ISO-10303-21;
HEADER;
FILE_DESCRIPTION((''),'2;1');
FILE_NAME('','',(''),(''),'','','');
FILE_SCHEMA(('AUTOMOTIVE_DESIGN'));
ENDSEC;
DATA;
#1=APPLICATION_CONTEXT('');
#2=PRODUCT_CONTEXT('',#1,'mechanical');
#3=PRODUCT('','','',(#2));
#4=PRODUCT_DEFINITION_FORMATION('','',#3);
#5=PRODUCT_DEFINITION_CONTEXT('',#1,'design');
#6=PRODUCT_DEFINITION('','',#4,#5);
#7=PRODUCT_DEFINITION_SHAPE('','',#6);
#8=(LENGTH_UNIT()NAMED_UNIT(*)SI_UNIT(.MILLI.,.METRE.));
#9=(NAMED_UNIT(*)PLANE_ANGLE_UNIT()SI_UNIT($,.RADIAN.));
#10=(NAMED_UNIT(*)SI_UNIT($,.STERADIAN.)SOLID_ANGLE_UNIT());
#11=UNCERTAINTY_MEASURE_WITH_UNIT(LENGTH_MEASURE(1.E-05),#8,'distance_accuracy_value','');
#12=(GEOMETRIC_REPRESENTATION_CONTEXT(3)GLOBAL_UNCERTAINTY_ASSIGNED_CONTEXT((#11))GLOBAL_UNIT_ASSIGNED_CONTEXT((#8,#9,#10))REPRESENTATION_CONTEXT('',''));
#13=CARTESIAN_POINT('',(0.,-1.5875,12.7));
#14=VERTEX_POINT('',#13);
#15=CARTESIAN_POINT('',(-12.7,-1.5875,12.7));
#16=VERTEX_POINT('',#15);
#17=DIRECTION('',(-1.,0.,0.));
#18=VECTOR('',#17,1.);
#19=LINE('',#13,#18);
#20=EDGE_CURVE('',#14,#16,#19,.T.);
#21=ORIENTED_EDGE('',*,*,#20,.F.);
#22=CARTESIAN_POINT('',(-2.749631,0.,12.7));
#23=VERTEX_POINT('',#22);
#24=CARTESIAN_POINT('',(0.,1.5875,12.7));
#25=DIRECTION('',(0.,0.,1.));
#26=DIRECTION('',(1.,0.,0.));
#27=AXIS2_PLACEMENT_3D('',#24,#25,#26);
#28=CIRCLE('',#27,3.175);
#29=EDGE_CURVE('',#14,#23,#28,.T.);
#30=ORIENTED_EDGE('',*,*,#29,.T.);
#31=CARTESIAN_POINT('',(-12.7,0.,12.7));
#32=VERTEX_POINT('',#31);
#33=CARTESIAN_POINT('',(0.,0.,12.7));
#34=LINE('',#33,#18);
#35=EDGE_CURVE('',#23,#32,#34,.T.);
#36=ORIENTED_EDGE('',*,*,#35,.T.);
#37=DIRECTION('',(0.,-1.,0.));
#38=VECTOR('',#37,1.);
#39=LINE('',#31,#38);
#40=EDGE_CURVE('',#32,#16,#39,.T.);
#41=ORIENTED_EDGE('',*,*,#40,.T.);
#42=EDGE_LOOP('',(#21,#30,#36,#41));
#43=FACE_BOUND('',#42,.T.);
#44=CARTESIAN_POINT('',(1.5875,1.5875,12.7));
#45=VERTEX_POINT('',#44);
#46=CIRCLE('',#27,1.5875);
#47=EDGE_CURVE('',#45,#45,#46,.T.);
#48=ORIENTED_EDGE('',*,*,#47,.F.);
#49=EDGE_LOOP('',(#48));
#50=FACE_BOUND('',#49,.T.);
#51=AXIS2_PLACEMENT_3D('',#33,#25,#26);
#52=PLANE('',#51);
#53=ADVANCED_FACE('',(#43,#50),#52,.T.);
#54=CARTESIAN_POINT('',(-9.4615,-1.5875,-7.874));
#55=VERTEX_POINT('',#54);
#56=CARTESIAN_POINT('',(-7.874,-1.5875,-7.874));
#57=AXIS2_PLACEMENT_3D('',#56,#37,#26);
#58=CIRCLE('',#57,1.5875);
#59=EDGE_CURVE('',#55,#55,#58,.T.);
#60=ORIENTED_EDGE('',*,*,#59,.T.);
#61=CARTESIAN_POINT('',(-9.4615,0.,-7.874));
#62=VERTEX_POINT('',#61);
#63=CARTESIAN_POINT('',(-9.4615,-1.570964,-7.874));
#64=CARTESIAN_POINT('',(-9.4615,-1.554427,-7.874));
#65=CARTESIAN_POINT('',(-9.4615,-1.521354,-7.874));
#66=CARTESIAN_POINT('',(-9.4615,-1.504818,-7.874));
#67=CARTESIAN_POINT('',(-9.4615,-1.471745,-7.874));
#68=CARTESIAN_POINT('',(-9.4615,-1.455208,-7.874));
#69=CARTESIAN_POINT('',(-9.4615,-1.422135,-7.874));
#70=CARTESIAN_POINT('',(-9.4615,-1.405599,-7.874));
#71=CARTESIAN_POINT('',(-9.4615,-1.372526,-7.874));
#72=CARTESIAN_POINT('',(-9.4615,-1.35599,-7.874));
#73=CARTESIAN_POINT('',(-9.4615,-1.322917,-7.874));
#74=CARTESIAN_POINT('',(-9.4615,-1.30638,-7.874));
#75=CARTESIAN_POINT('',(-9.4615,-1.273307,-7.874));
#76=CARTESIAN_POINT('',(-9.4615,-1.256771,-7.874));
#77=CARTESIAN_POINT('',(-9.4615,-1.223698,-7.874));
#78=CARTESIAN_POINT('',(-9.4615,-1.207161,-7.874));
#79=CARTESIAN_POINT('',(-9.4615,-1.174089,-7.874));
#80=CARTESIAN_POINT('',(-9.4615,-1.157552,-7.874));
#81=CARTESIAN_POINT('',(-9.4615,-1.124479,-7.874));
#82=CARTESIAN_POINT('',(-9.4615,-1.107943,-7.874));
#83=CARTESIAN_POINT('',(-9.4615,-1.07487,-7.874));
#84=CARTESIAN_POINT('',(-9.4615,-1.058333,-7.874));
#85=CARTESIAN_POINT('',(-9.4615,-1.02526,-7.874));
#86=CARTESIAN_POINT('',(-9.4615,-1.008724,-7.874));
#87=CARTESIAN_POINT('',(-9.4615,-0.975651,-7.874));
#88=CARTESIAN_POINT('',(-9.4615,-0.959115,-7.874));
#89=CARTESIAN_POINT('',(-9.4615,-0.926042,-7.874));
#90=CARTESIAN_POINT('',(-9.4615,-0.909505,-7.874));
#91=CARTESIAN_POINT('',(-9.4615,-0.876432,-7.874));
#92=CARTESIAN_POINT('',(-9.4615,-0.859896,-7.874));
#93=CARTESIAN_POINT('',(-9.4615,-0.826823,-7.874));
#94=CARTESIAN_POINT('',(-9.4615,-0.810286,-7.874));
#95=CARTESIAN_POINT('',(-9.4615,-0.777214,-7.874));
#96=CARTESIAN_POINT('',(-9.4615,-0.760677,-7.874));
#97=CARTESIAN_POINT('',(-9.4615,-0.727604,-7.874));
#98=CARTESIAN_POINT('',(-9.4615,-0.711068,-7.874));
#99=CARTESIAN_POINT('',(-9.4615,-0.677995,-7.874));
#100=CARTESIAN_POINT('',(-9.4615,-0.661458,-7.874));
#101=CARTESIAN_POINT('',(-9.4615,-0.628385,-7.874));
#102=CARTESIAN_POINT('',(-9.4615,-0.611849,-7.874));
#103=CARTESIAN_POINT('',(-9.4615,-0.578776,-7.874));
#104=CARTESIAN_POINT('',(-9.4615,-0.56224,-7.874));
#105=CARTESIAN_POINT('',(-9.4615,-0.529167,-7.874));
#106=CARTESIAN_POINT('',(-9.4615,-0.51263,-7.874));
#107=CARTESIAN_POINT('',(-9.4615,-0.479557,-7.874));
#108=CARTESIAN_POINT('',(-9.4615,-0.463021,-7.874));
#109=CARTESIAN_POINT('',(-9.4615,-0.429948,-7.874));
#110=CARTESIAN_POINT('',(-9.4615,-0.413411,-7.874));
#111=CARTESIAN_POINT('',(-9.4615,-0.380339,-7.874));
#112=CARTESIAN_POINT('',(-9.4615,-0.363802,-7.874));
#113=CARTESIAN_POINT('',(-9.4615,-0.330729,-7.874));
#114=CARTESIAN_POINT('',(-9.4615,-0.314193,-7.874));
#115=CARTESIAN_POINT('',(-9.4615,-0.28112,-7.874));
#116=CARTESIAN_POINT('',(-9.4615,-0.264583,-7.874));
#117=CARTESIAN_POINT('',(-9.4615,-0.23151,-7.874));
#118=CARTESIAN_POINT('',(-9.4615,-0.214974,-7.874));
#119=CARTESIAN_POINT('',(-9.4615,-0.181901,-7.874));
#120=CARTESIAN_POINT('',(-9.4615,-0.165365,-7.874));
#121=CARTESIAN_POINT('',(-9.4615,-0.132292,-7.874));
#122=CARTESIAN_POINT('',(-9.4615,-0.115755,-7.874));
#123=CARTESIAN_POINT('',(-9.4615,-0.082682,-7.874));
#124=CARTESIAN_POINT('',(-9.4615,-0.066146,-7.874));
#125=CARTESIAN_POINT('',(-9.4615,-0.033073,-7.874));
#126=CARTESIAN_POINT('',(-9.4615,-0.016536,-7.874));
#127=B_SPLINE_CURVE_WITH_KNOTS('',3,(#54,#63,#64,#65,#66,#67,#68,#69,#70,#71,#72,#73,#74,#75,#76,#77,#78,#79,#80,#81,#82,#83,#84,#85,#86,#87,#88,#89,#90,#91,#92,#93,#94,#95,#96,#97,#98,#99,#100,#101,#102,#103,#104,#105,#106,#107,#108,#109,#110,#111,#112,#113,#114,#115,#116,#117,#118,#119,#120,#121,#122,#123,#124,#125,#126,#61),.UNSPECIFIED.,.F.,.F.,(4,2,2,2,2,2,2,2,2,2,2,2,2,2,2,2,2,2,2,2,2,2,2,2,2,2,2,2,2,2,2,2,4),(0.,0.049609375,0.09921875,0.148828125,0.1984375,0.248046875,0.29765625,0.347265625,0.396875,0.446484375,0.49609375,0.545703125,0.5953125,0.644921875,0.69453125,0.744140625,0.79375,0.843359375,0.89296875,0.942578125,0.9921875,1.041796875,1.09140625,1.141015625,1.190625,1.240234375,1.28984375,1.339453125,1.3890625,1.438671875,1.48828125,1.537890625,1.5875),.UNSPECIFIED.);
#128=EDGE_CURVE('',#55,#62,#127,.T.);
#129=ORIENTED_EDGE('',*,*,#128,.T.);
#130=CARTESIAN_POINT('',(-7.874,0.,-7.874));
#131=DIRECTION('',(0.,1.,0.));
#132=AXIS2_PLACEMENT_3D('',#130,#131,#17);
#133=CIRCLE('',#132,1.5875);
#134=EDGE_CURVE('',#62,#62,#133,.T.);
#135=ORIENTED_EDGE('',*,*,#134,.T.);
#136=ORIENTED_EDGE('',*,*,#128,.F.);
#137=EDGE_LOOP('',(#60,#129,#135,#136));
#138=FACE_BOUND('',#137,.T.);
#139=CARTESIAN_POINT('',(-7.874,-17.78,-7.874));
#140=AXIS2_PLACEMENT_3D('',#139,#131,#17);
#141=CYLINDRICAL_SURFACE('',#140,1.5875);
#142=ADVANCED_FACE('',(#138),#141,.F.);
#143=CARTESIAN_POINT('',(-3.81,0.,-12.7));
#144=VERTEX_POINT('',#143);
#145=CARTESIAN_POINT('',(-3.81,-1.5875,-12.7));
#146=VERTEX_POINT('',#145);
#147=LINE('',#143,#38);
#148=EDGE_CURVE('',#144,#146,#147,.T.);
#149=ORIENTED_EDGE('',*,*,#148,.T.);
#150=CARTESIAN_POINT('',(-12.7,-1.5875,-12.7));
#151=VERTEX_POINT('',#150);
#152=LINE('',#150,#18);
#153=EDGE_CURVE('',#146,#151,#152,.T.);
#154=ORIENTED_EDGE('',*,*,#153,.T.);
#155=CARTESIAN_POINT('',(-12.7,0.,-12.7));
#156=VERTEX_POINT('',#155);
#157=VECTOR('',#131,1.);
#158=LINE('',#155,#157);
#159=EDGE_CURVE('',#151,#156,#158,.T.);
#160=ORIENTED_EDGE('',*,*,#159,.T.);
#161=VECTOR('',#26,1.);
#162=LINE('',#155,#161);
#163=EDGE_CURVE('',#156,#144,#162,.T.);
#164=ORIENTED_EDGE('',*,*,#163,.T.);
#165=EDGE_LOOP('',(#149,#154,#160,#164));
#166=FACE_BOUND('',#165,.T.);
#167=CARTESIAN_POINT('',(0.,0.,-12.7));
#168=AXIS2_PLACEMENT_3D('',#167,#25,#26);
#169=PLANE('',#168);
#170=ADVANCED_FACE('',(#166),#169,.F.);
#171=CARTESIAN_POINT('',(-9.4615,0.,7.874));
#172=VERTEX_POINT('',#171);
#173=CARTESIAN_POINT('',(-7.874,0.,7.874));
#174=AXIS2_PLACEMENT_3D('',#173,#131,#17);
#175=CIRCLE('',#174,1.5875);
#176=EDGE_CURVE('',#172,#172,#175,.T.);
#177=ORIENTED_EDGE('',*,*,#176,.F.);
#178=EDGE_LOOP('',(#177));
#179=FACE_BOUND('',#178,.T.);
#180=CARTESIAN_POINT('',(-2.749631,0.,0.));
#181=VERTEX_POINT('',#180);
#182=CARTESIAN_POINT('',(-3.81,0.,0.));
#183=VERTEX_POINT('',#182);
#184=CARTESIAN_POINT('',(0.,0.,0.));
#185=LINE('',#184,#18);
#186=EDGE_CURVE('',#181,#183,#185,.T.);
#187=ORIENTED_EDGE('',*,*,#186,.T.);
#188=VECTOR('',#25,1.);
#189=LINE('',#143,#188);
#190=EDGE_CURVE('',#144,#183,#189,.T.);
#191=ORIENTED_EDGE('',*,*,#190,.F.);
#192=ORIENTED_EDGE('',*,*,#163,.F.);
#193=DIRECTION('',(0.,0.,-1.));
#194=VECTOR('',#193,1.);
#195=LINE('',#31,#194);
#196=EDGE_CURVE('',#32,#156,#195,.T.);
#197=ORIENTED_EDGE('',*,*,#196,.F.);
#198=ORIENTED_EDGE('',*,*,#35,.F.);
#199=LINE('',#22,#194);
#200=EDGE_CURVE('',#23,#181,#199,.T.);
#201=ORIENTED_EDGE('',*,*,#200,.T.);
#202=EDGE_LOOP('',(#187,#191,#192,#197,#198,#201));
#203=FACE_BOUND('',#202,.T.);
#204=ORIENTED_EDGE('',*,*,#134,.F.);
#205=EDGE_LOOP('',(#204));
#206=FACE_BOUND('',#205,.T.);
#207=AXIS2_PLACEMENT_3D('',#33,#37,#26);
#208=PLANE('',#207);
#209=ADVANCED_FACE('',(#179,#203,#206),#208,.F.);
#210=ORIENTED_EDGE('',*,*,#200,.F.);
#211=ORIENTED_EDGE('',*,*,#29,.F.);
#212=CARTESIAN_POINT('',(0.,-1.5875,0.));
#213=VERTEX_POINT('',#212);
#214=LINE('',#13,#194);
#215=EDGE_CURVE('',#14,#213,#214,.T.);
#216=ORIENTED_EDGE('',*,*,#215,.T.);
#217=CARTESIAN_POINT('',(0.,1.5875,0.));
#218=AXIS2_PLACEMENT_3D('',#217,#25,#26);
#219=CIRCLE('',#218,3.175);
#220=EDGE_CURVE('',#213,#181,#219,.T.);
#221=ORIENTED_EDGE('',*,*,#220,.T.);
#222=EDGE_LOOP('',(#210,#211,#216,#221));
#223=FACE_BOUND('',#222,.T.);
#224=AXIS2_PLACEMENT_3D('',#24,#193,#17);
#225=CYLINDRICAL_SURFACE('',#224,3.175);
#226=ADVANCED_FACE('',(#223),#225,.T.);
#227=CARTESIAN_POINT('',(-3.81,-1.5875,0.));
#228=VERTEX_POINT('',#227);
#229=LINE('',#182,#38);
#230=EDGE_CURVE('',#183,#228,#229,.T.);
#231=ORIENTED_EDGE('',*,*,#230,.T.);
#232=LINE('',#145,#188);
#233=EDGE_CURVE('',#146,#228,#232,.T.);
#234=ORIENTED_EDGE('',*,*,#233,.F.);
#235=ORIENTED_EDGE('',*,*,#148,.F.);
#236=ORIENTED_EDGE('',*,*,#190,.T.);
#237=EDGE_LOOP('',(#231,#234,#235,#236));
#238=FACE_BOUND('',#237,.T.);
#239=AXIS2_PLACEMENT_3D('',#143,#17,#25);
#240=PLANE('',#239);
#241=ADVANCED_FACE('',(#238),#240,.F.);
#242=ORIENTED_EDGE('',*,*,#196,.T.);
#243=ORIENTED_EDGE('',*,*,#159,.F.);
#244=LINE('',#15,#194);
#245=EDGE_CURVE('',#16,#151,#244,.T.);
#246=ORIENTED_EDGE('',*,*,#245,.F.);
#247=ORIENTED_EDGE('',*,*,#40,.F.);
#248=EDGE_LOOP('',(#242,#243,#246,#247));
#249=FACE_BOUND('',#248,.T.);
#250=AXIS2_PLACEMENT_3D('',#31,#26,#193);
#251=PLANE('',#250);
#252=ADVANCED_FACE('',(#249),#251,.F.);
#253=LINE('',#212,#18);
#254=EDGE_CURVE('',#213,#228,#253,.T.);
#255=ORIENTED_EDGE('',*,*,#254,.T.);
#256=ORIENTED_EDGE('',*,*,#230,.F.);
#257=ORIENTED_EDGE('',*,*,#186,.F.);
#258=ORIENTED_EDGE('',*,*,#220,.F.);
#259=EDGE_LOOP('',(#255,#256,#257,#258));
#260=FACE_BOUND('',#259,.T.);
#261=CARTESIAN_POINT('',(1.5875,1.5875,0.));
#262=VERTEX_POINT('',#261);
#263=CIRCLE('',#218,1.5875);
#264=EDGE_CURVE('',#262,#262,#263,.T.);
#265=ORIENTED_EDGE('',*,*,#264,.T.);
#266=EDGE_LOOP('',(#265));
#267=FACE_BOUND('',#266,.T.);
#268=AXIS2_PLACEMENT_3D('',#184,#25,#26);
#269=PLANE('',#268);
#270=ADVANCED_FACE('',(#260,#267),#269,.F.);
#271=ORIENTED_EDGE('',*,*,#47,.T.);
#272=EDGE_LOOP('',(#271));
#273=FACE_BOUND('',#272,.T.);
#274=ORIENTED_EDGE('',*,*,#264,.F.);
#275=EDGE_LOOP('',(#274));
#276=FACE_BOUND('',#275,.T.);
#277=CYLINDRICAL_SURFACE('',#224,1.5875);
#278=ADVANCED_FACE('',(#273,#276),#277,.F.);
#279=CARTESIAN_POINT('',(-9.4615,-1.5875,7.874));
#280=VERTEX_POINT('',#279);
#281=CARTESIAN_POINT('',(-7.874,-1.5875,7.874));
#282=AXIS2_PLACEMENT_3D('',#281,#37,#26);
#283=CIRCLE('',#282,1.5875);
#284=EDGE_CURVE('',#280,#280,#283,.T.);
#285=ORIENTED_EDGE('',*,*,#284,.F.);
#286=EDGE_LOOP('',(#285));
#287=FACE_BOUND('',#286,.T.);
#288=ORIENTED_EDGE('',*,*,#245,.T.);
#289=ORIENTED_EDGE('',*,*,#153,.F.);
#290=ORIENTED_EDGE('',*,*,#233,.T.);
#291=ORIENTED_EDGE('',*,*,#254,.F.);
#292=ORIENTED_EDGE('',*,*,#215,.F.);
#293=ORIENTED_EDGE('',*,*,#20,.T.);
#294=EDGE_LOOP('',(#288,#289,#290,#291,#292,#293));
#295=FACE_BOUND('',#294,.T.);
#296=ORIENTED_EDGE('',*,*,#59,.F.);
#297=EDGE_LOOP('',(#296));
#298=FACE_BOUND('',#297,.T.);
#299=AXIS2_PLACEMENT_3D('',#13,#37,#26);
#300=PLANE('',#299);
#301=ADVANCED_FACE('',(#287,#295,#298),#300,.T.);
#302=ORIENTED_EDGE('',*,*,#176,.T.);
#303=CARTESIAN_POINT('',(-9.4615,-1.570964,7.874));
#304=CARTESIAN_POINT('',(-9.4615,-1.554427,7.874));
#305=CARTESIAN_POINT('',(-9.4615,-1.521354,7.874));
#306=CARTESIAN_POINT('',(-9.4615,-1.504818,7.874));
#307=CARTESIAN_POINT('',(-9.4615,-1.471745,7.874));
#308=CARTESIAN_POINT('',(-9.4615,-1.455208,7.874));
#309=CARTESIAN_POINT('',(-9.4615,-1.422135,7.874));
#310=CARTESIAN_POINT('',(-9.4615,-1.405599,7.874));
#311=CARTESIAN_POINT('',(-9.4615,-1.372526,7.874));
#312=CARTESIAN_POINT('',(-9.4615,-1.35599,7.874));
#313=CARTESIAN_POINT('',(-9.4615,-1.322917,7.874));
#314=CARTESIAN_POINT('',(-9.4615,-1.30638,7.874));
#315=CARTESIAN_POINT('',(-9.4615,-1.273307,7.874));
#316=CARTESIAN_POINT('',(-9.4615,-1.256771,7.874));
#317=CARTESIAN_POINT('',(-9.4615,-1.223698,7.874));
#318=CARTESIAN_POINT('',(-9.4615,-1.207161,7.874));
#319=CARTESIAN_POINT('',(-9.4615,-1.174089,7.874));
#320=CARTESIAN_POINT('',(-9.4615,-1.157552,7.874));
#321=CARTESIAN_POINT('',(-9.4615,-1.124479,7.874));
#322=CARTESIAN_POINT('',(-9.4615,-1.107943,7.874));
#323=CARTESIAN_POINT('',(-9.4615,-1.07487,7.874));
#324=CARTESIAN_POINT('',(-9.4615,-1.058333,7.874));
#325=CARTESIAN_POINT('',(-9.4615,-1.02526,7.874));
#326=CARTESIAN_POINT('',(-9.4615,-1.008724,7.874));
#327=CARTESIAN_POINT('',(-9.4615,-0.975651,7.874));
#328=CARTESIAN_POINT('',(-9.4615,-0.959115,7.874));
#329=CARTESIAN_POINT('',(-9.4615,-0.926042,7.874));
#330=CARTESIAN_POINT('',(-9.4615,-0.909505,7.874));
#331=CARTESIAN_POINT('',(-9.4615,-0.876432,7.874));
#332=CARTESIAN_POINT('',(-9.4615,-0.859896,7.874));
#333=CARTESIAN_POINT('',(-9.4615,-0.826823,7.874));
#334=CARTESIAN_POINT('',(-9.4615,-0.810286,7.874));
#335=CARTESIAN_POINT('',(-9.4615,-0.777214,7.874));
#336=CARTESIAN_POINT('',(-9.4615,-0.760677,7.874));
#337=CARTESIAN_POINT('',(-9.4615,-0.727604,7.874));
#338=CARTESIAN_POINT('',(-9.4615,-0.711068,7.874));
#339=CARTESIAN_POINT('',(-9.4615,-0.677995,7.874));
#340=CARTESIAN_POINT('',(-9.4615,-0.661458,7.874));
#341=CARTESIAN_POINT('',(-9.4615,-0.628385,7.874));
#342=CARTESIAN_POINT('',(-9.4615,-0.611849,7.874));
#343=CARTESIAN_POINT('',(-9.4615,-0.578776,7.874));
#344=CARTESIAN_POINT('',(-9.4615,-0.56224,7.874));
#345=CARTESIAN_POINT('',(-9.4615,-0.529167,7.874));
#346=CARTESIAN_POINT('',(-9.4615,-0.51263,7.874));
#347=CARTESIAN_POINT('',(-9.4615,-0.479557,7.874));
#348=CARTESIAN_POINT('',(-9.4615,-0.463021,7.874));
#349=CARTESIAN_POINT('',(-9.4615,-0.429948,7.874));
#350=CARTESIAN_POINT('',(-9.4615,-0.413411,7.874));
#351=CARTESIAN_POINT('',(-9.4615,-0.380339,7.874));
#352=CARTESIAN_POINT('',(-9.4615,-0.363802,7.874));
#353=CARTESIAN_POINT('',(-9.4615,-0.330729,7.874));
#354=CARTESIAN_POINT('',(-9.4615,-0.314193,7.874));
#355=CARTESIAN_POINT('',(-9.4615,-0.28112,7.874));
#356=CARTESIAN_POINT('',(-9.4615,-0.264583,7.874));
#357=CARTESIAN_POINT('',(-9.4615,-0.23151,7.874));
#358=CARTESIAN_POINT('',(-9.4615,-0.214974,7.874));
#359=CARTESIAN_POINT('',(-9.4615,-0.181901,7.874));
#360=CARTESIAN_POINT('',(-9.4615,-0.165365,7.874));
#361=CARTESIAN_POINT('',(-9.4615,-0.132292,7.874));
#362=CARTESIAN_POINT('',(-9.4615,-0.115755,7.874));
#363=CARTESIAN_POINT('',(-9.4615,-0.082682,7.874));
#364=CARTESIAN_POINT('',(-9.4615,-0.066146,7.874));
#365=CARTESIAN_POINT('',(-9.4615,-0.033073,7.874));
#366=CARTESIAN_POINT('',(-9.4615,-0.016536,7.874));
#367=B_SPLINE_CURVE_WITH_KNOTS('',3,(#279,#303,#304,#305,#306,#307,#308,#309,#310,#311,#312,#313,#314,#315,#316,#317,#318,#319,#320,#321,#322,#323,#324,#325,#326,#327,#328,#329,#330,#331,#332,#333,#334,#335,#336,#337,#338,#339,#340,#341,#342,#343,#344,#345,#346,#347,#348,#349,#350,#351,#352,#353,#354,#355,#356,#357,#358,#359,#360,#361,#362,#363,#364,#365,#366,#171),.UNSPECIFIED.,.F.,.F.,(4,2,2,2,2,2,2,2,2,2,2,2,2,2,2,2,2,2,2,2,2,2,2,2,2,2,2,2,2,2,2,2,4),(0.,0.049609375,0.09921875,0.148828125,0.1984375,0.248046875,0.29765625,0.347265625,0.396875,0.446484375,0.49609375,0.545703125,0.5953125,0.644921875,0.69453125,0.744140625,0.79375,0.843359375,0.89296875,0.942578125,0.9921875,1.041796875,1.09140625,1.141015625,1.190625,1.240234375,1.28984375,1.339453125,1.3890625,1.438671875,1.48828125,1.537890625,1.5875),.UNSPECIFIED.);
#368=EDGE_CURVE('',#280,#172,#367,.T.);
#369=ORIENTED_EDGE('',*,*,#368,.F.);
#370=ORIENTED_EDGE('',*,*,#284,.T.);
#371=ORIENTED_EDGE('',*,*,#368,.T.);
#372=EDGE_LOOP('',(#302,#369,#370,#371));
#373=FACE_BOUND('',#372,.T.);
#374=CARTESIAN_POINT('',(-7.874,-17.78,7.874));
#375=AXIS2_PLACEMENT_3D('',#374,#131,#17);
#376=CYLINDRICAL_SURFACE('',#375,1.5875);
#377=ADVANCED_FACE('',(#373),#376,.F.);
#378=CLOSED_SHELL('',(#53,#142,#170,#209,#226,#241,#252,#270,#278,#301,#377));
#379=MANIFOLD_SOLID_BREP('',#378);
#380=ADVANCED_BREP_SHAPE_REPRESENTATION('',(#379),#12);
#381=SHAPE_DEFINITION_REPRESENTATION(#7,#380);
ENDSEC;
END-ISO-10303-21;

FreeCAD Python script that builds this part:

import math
import FreeCAD as App
import Part
import Sketcher

V = App.Vector
Q = App.Units.Quantity


def add_polygon(sketch, points):
    """Adds a closed chain of lines whose ends are joined by coincident constraints."""
    first, n = sketch.GeometryCount, len(points)
    for a, b in zip(points, points[1:] + points[:1]):
        sketch.addGeometry(Part.LineSegment(App.Vector(*a, 0), App.Vector(*b, 0)), False)
    for i in range(n):
        sketch.addConstraint(Sketcher.Constraint("Coincident", first + i, 2, first + (i + 1) % n, 1))

doc = App.newDocument("Part")
body = doc.addObject("PartDesign::Body", "Body")

# Sketch on XY plane
sketch1 = doc.addObject("Sketcher::SketchObject", "Sketch")
body.addObject(sketch1)
sketch1.AttachmentSupport = (doc.XY_Plane, [""])
sketch1.MapMode = "FlatFace"
sketch1.addGeometry([
    Part.LineSegment(V(-2.749631, 0, 0), V(-12.7, 0, 0)),  # 0
    Part.LineSegment(V(-12.7, 0, 0), V(-12.7, -1.5875, 0)),  # 1
    Part.LineSegment(V(-12.7, -1.5875, 0), V(0, -1.5875, 0)),  # 2
    Part.ArcOfCircle(Part.Circle(V(0, 1.5875, 0), V(0, 0, 1), 3.175), math.radians(-90), math.radians(0)),  # 3
    Part.ArcOfCircle(Part.Circle(V(0, 1.5875, 0), V(0, 0, 1), 3.175), math.radians(0), math.radians(210)),  # 4
    Part.ArcOfCircle(Part.Circle(V(0, 1.5875, 0), V(0, 0, 1), 1.5875), math.radians(0), math.radians(270)),  # 5
    Part.ArcOfCircle(Part.Circle(V(0, 1.5875, 0), V(0, 0, 1), 1.5875), math.radians(-90), math.radians(0)),  # 6
], False)
sketch1.addConstraint([
    Sketcher.Constraint("Coincident", 0, 2, 1, 1),
    Sketcher.Constraint("Coincident", 1, 2, 2, 1),
    Sketcher.Constraint("Tangent", 2, 2, 3, 1),
    Sketcher.Constraint("Tangent", 3, 2, 4, 1),
    Sketcher.Constraint("Coincident", 4, 2, 0, 1),
    Sketcher.Constraint("Tangent", 5, 1, 6, 2),
    Sketcher.Constraint("Coincident", 6, 1, 5, 2),
    Sketcher.Constraint("Horizontal", 0),
    Sketcher.Constraint("Vertical", 1),
    Sketcher.Constraint("Horizontal", 2),
    Sketcher.Constraint("Coincident", 6, 1, -1, 1),
    Sketcher.Constraint("Coincident", 5, 3, 3, 3),
    Sketcher.Constraint("Equal", 3, 4),
    Sketcher.Constraint("PointOnObject", 3, 3, -2),
    Sketcher.Constraint("PointOnObject", 0, 2, -1),
    Sketcher.Constraint("Horizontal", 6, 3, 3, 2),
    Sketcher.Constraint("Horizontal", 3, 2, 5, 1),
    Sketcher.Constraint("DistanceX", 2, 1, 2, 2, Q("0.5 in")),
    Sketcher.Constraint("Radius", 3, Q("0.125 in")),
    Sketcher.Constraint("Radius", 5, Q("0.0625 in")),
])
pad1 = doc.addObject("PartDesign::Pad", "Pad")
body.addObject(pad1)
pad1.Profile = sketch1
pad1.Length = Q("0.5 in")

# Sketch on XY plane
sketch2 = doc.addObject("Sketcher::SketchObject", "Sketch001")
body.addObject(sketch2)
sketch2.AttachmentSupport = (doc.XY_Plane, [""])
sketch2.MapMode = "FlatFace"
add_polygon(sketch2, [(-3.81, 0), (-3.81, -1.5875), (-12.7, -1.5875), (-12.7, 0)])  # lines 0-3
sketch2.addConstraint([
    Sketcher.Constraint("Vertical", 0),
    Sketcher.Constraint("Horizontal", 1),
    Sketcher.Constraint("Vertical", 2),
    Sketcher.Constraint("Horizontal", 3),
    Sketcher.Constraint("PointOnObject", 2, 2, -1),
    Sketcher.Constraint("DistanceX", 1, 2, 1, 1, Q("0.35 in")),
    Sketcher.Constraint("DistanceX", 1, 2, -1, 1, Q("0.5 in")),
    Sketcher.Constraint("DistanceY", 0, 2, 0, 1, Q("0.0625 in")),
])
pad2 = doc.addObject("PartDesign::Pad", "Pad001")
body.addObject(pad2)
pad2.Profile = sketch2
pad2.Length = Q("0.5 in")
pad2.Reversed = True

# Sketch on XZ plane
sketch3 = doc.addObject("Sketcher::SketchObject", "Sketch002")
body.addObject(sketch3)
sketch3.AttachmentSupport = (doc.XZ_Plane, [""])
sketch3.MapMode = "FlatFace"
sketch3.addGeometry([
    Part.Circle(V(-7.874, -7.874, 0), V(0, 0, 1), 1.5875),
    Part.Circle(V(-7.874, 7.874, 0), V(0, 0, 1), 1.5875),
], False)
sketch3.addConstraint([
    Sketcher.Constraint("Equal", 0, 1),
    Sketcher.Constraint("Symmetric", 0, 3, 1, 3, -1),
    Sketcher.Constraint("Diameter", 0, Q("0.125 in")),
    Sketcher.Constraint("DistanceX", 0, 3, -1, 1, Q("0.31 in")),
    Sketcher.Constraint("DistanceY", 0, 3, -1, 1, Q("0.31 in")),
])
pocket1 = doc.addObject("PartDesign::Pocket", "Pocket")
body.addObject(pocket1)
pocket1.Profile = sketch3
pocket1.Length = Q("0.7 in")
pocket1.Reversed = True

doc.recompute()
